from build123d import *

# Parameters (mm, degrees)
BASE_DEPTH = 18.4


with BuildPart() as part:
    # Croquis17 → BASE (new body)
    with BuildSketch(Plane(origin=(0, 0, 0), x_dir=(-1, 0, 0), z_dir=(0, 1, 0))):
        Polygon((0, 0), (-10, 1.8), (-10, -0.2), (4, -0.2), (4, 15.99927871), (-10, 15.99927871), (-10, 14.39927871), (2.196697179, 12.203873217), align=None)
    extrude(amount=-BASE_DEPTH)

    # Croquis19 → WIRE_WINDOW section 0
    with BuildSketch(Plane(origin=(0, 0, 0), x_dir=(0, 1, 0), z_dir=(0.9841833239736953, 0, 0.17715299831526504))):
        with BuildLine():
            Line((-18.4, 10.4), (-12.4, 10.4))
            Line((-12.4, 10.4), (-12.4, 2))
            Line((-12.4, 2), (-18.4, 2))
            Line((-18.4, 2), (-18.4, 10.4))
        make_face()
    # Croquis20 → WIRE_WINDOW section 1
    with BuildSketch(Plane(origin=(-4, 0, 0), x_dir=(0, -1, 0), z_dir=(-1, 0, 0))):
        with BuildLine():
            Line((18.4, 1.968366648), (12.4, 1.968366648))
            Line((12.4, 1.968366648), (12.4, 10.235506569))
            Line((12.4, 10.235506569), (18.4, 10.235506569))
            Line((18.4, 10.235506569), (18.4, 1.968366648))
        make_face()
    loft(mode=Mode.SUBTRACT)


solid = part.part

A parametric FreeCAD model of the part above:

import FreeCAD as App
import Part
import Sketcher

V = App.Vector
Q = App.Units.Quantity


def add_polygon(sketch, points):
    """Adds a closed chain of lines whose ends are joined by coincident constraints."""
    first, n = sketch.GeometryCount, len(points)
    for a, b in zip(points, points[1:] + points[:1]):
        sketch.addGeometry(Part.LineSegment(App.Vector(*a, 0), App.Vector(*b, 0)), False)
    for i in range(n):
        sketch.addConstraint(Sketcher.Constraint("Coincident", first + i, 2, first + (i + 1) % n, 1))

doc = App.newDocument("Part")
body = doc.addObject("PartDesign::Body", "Body")

sketch1 = body.newObject("Sketcher::SketchObject", "Sketch")
sketch1.AttachmentSupport = (doc.getObject("XZ_Plane"), [""])
sketch1.MapMode = "FlatFace"
add_polygon(sketch1, [(0, 0), (10, 1.8), (10, -0.2), (-4, -0.2), (-4, 16), (10, 16), (10, 14.4), (-2.2, 12.2)])
sketch1.addConstraint([
    Sketcher.Constraint("Vertical", 1),
    Sketcher.Constraint("Horizontal", 2),
    Sketcher.Constraint("Vertical", 3),
    Sketcher.Constraint("Horizontal", 4),
    Sketcher.Constraint("Vertical", 5),
    Sketcher.Constraint("Coincident", 7, 2, -1, 1),
    Sketcher.Constraint("Parallel", 0, 6),
    Sketcher.Constraint("Perpendicular", 6, 7),
    Sketcher.Constraint("Vertical", 1, 2, 4, 2),
    Sketcher.Constraint("DistanceX", 2, 2, 2, 1, Q("14 mm")),
    Sketcher.Constraint("DistanceY", 1, 2, 1, 1, Q("2 mm")),
    Sketcher.Constraint("DistanceY", 5, 2, 5, 1, Q("1.6 mm")),
    Sketcher.Constraint("DistanceX", -1, 1, 0, 2, Q("10 mm")),
    Sketcher.Constraint("Distance", 7, Q("12.4 mm")),
    Sketcher.Constraint("DistanceY", -1, 1, 0, 2, Q("1.8 mm")),
])
pad1 = body.newObject("PartDesign::Pad", "Pad")
pad1.Profile = sketch1
pad1.Length = 18.4

sketch2 = body.newObject("Sketcher::SketchObject", "Sketch001")
sketch2.Placement = App.Placement(V(0, 0, 0), App.Rotation(V(0, 1, 0), V(-0.177152998, 0, 0.984183324), V(0.984183324, 0, 0.177152998), "ZXY"))
add_polygon(sketch2, [(-12, 10), (-18, 10), (-18, 2), (-12, 2)])
sketch2.addConstraint([
    Sketcher.Constraint("Horizontal", 0),
    Sketcher.Constraint("Vertical", 1),
    Sketcher.Constraint("Horizontal", 2),
    Sketcher.Constraint("Vertical", 3),
    Sketcher.Constraint("DistanceX", 0, 2, 0, 1, Q("6 mm")),
    Sketcher.Constraint("DistanceY", 1, 2, 1, 1, Q("8.4 mm")),
    Sketcher.Constraint("DistanceY", -1, 1, 1, 2, Q("2 mm")),
    Sketcher.Constraint("DistanceX", 0, 2, -1, 1, Q("18.4 mm")),
])

sketch3 = body.newObject("Sketcher::SketchObject", "Sketch002")
sketch3.AttachmentSupport = (doc.getObject("YZ_Plane"), [""])
sketch3.MapMode = "FlatFace"
sketch3.AttachmentOffset = App.Placement(V(0, 0, -4), App.Rotation())
add_polygon(sketch3, [(-12, 2), (-18, 2), (-18, 10), (-12, 10)])
sketch3.addConstraint([
    Sketcher.Constraint("Horizontal", 0),
    Sketcher.Constraint("Vertical", 1),
    Sketcher.Constraint("Horizontal", 2),
    Sketcher.Constraint("Vertical", 3),
    Sketcher.Constraint("DistanceX", 0, 2, 0, 1, Q("6 mm")),
    Sketcher.Constraint("DistanceX", 0, 2, -1, 1, Q("18.4 mm")),
    Sketcher.Constraint("DistanceY", 1, 1, 1, 2, Q("8.26714 mm")),
    Sketcher.Constraint("DistanceY", -1, 1, 0, 2, Q("1.968367 mm")),
])

subtractiveloft = body.newObject("PartDesign::SubtractiveLoft", "SubtractiveLoft")
subtractiveloft.Profile = sketch2
subtractiveloft.Sections = [sketch3]

doc.recompute()
